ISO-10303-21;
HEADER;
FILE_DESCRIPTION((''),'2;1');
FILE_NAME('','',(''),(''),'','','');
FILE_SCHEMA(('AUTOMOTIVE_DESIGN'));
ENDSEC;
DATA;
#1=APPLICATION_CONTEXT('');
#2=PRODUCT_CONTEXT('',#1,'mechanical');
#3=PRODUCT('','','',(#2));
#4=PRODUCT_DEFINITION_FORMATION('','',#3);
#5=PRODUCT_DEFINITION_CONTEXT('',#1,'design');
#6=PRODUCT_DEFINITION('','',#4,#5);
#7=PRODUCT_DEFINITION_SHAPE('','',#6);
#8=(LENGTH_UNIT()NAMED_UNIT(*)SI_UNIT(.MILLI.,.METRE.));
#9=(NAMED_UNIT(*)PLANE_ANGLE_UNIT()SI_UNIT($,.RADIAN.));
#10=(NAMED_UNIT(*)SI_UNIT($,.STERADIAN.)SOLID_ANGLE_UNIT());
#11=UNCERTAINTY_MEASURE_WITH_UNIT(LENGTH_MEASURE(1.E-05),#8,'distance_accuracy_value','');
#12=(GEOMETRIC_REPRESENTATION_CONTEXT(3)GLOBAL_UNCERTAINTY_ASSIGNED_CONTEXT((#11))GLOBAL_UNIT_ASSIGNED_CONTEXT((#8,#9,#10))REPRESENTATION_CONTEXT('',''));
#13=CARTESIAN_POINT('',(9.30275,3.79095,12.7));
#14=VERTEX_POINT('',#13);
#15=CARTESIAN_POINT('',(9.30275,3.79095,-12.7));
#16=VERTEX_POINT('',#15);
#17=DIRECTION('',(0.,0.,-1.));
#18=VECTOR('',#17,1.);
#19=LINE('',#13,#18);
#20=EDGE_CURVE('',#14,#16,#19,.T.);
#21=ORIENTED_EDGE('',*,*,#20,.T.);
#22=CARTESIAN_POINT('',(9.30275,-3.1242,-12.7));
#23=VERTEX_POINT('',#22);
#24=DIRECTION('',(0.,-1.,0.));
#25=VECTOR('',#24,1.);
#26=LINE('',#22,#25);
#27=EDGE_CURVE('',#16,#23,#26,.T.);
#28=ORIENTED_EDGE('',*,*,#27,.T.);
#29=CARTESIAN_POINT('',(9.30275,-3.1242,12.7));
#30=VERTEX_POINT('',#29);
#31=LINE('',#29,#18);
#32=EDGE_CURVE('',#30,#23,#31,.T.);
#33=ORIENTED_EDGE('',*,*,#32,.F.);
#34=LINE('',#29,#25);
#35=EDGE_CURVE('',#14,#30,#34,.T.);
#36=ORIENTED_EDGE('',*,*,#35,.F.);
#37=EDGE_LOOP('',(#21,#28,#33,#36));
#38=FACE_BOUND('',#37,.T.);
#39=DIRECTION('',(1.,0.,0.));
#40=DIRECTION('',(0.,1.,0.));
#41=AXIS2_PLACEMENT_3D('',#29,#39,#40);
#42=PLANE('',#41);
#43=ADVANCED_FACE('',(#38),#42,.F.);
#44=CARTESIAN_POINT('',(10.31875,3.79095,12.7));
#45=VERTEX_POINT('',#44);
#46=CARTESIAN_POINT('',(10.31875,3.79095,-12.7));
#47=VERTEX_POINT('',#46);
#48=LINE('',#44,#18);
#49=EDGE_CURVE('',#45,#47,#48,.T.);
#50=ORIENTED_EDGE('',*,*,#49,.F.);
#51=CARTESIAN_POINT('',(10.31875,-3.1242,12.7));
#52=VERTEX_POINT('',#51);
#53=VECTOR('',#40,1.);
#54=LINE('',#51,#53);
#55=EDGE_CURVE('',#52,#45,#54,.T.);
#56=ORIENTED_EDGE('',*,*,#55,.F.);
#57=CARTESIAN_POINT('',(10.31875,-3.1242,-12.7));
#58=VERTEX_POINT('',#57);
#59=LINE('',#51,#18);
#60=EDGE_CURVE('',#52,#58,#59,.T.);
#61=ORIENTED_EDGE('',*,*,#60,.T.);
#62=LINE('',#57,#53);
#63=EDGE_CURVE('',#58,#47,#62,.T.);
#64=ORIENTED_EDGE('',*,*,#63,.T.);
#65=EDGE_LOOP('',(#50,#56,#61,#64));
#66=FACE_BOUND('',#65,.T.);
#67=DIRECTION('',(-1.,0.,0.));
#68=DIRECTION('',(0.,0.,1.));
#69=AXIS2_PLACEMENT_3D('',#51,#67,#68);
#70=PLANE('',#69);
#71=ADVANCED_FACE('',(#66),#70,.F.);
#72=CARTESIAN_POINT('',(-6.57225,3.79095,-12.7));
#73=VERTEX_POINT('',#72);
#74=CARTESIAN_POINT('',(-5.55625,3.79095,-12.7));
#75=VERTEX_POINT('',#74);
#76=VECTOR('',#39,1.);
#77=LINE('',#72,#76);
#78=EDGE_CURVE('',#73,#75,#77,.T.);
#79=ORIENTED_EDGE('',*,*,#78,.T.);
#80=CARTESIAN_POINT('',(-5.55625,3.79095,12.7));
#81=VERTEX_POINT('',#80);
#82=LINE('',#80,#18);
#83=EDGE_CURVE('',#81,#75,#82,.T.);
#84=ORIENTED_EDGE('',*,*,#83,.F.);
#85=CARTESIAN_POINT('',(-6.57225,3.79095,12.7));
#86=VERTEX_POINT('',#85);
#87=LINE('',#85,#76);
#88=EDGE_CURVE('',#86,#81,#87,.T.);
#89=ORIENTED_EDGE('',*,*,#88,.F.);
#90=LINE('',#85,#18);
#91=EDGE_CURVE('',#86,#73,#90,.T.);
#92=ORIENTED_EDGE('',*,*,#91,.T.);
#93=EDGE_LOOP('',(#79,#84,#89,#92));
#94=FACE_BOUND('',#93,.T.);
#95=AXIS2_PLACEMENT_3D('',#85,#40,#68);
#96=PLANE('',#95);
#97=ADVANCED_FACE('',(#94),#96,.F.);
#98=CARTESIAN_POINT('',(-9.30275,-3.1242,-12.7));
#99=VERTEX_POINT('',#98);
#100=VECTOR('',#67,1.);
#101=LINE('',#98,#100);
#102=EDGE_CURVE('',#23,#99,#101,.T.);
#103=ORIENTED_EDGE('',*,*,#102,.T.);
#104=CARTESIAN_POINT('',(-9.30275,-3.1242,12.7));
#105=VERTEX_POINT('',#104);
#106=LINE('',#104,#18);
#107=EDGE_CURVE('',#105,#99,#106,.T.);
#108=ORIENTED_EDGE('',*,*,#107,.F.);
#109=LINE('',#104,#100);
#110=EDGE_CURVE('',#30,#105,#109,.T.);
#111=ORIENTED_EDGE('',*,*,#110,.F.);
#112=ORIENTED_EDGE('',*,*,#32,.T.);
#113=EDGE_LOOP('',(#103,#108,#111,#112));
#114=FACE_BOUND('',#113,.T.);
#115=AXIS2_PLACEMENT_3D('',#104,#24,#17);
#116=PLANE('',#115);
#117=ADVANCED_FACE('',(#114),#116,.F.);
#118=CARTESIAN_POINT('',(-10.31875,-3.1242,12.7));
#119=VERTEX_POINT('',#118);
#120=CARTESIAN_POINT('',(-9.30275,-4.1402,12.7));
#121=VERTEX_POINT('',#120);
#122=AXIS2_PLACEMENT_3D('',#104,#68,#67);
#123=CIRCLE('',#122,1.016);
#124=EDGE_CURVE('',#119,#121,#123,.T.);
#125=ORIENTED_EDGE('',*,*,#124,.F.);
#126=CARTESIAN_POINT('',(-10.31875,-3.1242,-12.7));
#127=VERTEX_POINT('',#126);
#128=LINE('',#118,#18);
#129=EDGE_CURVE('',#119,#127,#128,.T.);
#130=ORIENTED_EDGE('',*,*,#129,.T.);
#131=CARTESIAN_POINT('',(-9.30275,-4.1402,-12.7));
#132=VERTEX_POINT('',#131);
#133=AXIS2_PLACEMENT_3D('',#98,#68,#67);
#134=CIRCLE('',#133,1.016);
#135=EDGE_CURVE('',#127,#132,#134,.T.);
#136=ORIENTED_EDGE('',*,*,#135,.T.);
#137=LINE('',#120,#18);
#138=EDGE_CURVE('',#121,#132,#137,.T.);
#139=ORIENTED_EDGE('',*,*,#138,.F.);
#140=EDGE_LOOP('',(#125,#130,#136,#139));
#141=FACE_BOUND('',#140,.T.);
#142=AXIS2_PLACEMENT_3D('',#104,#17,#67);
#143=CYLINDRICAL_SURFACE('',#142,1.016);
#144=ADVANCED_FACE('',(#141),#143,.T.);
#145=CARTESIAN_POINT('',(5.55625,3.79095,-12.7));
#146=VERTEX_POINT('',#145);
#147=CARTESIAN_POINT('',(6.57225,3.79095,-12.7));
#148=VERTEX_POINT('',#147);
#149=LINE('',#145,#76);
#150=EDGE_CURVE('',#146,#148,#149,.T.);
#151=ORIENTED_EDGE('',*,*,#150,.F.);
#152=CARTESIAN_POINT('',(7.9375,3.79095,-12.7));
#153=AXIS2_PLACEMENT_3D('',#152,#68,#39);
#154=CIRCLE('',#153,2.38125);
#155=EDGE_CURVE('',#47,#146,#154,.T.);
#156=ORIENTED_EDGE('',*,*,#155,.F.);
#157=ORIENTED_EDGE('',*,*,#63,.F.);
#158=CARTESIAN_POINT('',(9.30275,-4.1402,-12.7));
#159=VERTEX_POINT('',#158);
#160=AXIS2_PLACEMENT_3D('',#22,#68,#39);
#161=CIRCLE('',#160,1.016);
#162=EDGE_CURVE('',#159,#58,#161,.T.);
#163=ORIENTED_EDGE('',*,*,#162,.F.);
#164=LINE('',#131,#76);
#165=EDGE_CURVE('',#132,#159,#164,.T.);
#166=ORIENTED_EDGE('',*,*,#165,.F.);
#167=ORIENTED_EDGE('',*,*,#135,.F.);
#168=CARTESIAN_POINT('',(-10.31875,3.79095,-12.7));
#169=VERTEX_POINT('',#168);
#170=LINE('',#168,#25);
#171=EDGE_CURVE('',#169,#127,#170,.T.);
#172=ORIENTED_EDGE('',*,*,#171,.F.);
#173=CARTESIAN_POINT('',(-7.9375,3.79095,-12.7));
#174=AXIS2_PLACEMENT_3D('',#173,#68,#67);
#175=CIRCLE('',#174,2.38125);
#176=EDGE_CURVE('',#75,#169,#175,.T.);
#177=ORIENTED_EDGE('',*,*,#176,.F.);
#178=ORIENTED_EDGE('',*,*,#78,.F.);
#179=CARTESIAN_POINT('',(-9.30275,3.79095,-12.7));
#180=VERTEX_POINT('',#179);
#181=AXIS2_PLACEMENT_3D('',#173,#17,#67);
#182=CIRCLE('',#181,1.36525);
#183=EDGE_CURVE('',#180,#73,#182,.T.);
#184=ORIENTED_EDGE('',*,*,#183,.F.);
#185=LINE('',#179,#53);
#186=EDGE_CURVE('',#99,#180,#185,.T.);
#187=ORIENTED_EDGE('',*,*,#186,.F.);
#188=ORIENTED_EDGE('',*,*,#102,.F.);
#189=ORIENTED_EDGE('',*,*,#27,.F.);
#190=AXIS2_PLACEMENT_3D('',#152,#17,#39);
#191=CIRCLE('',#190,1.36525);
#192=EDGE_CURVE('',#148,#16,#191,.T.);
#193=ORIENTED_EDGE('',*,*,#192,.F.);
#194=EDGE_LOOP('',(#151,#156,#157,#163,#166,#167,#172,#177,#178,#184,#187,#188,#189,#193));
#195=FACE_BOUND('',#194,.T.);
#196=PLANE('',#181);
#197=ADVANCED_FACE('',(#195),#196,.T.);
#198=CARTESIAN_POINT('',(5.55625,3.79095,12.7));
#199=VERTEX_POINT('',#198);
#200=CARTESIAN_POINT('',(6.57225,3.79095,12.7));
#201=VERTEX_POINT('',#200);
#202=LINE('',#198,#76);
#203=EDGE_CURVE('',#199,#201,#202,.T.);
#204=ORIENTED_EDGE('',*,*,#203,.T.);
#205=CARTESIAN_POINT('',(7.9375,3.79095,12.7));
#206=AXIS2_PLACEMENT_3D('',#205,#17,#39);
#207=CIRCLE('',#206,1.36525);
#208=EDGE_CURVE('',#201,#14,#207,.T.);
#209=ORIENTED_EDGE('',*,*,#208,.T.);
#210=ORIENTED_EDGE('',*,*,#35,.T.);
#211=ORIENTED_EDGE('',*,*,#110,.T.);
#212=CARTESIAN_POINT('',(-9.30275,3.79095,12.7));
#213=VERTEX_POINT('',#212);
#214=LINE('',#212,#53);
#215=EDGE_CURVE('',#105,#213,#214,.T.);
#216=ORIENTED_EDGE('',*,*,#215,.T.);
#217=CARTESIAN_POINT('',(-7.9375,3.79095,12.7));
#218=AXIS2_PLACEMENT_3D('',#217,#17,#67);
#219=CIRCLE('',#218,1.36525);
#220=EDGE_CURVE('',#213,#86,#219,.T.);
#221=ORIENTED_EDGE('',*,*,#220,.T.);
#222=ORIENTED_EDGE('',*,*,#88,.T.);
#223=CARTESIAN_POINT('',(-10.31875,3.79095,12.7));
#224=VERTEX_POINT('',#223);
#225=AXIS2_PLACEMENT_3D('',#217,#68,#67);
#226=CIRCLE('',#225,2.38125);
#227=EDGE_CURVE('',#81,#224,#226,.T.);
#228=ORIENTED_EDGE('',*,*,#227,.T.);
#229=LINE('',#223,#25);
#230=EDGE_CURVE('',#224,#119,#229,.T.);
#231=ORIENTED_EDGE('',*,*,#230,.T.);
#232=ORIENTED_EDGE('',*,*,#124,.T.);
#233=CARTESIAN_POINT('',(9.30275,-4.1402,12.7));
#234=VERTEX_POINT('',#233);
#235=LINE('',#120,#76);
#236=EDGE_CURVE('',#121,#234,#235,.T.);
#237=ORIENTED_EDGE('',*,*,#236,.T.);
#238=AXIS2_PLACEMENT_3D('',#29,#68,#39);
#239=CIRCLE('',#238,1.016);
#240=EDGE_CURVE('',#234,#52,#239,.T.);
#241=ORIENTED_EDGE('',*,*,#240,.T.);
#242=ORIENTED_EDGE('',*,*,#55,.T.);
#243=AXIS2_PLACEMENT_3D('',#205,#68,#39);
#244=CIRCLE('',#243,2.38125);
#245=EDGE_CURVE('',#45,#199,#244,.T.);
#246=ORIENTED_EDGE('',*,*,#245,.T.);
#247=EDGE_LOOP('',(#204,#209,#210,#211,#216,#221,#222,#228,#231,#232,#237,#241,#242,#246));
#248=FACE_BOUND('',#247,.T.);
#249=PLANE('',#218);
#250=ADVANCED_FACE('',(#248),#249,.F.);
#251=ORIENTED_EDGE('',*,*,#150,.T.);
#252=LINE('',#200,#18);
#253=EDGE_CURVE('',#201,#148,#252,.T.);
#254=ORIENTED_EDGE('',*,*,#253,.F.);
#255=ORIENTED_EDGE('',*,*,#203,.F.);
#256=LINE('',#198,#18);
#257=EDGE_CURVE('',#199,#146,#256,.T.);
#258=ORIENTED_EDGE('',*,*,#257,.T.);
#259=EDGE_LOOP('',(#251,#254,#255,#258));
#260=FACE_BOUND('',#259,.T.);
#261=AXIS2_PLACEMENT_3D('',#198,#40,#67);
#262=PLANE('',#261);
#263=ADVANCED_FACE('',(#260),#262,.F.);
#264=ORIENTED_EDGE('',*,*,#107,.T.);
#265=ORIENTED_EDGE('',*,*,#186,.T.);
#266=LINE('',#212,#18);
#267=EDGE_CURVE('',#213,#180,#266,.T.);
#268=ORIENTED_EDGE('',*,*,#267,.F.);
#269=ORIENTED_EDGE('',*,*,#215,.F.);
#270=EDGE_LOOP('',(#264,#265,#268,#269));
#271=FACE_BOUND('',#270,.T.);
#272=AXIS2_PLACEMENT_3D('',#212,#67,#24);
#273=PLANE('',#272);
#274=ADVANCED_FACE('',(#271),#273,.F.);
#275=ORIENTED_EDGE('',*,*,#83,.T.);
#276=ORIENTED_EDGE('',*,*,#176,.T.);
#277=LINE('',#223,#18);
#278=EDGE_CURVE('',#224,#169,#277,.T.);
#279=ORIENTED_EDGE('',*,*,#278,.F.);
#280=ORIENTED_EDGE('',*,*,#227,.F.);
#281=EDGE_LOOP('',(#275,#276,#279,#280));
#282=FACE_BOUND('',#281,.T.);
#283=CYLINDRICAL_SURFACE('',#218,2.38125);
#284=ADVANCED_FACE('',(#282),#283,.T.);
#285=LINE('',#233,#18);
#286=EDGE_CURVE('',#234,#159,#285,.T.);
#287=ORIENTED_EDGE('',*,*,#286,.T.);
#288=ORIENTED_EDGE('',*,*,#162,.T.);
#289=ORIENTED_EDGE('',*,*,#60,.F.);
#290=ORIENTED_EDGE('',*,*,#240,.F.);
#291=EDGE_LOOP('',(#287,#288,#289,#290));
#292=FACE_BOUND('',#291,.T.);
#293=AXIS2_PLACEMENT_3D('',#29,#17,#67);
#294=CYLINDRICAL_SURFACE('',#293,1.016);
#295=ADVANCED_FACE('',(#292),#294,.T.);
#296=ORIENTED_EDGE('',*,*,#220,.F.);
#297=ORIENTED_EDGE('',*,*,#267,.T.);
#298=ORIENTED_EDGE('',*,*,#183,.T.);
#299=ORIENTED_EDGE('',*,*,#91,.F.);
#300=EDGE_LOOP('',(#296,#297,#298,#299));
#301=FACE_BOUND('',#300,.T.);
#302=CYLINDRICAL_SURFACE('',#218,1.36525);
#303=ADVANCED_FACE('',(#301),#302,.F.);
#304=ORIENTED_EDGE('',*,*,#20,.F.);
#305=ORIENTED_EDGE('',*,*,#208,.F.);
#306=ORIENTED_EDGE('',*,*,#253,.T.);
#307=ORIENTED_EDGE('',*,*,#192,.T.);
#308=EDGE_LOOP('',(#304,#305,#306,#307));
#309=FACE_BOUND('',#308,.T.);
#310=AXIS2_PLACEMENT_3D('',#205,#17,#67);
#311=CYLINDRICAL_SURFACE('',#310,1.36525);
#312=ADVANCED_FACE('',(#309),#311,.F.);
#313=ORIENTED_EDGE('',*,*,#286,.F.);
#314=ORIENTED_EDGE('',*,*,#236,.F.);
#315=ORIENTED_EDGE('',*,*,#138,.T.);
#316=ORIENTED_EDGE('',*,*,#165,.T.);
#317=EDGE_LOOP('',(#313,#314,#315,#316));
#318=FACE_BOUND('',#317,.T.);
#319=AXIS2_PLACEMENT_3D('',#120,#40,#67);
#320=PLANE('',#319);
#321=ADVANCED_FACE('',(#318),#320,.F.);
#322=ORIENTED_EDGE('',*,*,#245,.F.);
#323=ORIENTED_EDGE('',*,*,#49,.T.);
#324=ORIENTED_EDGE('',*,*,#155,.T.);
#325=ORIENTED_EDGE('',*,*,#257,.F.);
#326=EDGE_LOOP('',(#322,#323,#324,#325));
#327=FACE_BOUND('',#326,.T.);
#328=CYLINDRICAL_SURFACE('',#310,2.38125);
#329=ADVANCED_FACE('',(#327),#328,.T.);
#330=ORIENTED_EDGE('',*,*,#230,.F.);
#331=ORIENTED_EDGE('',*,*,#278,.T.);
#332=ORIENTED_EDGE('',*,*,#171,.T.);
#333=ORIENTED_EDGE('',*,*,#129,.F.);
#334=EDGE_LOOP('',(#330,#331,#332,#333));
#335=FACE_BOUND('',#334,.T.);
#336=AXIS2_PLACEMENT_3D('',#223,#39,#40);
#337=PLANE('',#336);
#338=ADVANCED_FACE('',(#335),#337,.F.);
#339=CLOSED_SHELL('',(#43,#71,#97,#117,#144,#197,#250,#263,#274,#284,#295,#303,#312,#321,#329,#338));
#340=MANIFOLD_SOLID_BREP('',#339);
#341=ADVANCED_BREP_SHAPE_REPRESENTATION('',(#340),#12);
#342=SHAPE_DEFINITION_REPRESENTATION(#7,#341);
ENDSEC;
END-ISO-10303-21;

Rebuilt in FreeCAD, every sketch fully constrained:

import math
import FreeCAD as App
import Part
import Sketcher
Q = App.Units.Quantity

doc = App.newDocument("Part")
params = doc.addObject("Spreadsheet::Sheet", "Params")
for row, (alias, value) in enumerate([
    ("sketch1_radius", "0.04 in"),
    ("sketch1_radius2", "0.09375 in"),
    ("pad1_length", "1 in"),
], start=1):
    params.set(f"A{row}", alias)
    params.set(f"B{row}", "=" + value)
    params.setAlias(f"B{row}", alias)

body = doc.addObject("PartDesign::Body", "Body")

sketch1 = body.newObject("Sketcher::SketchObject", "Sketch")
sketch1.AttachmentSupport = (doc.getObject("XY_Plane"), [""])
sketch1.MapMode = "FlatFace"
sketch1.addGeometry([
    Part.LineSegment(App.Vector(-10.3, 3.8, 0), App.Vector(-10.3, -3.1, 0)),
    Part.ArcOfCircle(Part.Circle(App.Vector(-9.3, -3.1, 0), App.Vector(0, 0, 1), 1), math.radians(180), math.radians(270)),
    Part.LineSegment(App.Vector(-9.3, -4.1, 0), App.Vector(9.3, -4.1, 0)),
    Part.ArcOfCircle(Part.Circle(App.Vector(9.3, -3.1, 0), App.Vector(0, 0, 1), 1), math.radians(-90), math.radians(0)),
    Part.LineSegment(App.Vector(10.3, -3.1, 0), App.Vector(10.3, 3.8, 0)),
    Part.ArcOfCircle(Part.Circle(App.Vector(7.9, 3.8, 0), App.Vector(0, 0, 1), 2.4), math.radians(0), math.radians(180)),
    Part.LineSegment(App.Vector(5.6, 3.8, 0), App.Vector(6.6, 3.8, 0)),
    Part.ArcOfCircle(Part.Circle(App.Vector(7.9, 3.8, 0), App.Vector(0, 0, 1), 1.4), math.radians(0), math.radians(180)),
    Part.LineSegment(App.Vector(9.3, 3.8, 0), App.Vector(9.3, -3.1, 0)),
    Part.LineSegment(App.Vector(9.3, -3.1, 0), App.Vector(-9.3, -3.1, 0)),
    Part.LineSegment(App.Vector(-9.3, -3.1, 0), App.Vector(-9.3, 3.8, 0)),
    Part.ArcOfCircle(Part.Circle(App.Vector(-7.9, 3.8, 0), App.Vector(0, 0, 1), 1.4), math.radians(0), math.radians(180)),
    Part.LineSegment(App.Vector(-6.6, 3.8, 0), App.Vector(-5.6, 3.8, 0)),
    Part.ArcOfCircle(Part.Circle(App.Vector(-7.9, 3.8, 0), App.Vector(0, 0, 1), 2.4), math.radians(0), math.radians(180)),
], False)
sketch1.addConstraint([
    Sketcher.Constraint("Tangent", 0, 2, 1, 1),
    Sketcher.Constraint("Tangent", 1, 2, 2, 1),
    Sketcher.Constraint("Tangent", 2, 2, 3, 1),
    Sketcher.Constraint("Tangent", 3, 2, 4, 1),
    Sketcher.Constraint("Tangent", 4, 2, 5, 1),
    Sketcher.Constraint("Coincident", 5, 2, 6, 1),
    Sketcher.Constraint("Coincident", 6, 2, 7, 2),
    Sketcher.Constraint("Tangent", 7, 1, 8, 1),
    Sketcher.Constraint("Coincident", 8, 2, 9, 1),
    Sketcher.Constraint("Coincident", 9, 2, 10, 1),
    Sketcher.Constraint("Tangent", 10, 2, 11, 2),
    Sketcher.Constraint("Coincident", 11, 1, 12, 1),
    Sketcher.Constraint("Coincident", 12, 2, 13, 1),
    Sketcher.Constraint("Tangent", 13, 2, 0, 1),
    Sketcher.Constraint("Vertical", 0),
    Sketcher.Constraint("Horizontal", 2),
    Sketcher.Constraint("Vertical", 4),
    Sketcher.Constraint("Horizontal", 6),
    Sketcher.Constraint("Vertical", 8),
    Sketcher.Constraint("Horizontal", 9),
    Sketcher.Constraint("Vertical", 10),
    Sketcher.Constraint("Horizontal", 12),
    Sketcher.Constraint("Coincident", 7, 3, 5, 3),
    Sketcher.Constraint("Coincident", 13, 3, 11, 3),
    Sketcher.Constraint("Coincident", 8, 2, 3, 3),
    Sketcher.Constraint("Coincident", 9, 2, 1, 3),
    Sketcher.Constraint("Equal", 7, 11),
    Sketcher.Constraint("Symmetric", 5, 3, 11, 3, -2),
    Sketcher.Constraint("Horizontal", 4, 2, 5, 2),
    Sketcher.Constraint("Horizontal", 10, 2, 11, 1),
    Sketcher.Constraint("Radius", 1, Q("0.04 in")),
    Sketcher.Constraint("Radius", 5, Q("0.09375 in")),
    Sketcher.Constraint("DistanceX", 2, 1, 2, 2, Q("0.7325 in")),
    Sketcher.Constraint("DistanceY", 1, 3, -1, 1, Q("0.123 in")),
    Sketcher.Constraint("DistanceY", 0, 2, 0, 1, 6.91515),
])
sketch1.setExpression("Constraints[30]", "Params.sketch1_radius")
sketch1.setExpression("Constraints[31]", "Params.sketch1_radius2")
pad1 = body.newObject("PartDesign::Pad", "Pad")
pad1.Profile = sketch1
pad1.setExpression("Length", "Params.pad1_length")
pad1.Midplane = True

doc.recompute()
